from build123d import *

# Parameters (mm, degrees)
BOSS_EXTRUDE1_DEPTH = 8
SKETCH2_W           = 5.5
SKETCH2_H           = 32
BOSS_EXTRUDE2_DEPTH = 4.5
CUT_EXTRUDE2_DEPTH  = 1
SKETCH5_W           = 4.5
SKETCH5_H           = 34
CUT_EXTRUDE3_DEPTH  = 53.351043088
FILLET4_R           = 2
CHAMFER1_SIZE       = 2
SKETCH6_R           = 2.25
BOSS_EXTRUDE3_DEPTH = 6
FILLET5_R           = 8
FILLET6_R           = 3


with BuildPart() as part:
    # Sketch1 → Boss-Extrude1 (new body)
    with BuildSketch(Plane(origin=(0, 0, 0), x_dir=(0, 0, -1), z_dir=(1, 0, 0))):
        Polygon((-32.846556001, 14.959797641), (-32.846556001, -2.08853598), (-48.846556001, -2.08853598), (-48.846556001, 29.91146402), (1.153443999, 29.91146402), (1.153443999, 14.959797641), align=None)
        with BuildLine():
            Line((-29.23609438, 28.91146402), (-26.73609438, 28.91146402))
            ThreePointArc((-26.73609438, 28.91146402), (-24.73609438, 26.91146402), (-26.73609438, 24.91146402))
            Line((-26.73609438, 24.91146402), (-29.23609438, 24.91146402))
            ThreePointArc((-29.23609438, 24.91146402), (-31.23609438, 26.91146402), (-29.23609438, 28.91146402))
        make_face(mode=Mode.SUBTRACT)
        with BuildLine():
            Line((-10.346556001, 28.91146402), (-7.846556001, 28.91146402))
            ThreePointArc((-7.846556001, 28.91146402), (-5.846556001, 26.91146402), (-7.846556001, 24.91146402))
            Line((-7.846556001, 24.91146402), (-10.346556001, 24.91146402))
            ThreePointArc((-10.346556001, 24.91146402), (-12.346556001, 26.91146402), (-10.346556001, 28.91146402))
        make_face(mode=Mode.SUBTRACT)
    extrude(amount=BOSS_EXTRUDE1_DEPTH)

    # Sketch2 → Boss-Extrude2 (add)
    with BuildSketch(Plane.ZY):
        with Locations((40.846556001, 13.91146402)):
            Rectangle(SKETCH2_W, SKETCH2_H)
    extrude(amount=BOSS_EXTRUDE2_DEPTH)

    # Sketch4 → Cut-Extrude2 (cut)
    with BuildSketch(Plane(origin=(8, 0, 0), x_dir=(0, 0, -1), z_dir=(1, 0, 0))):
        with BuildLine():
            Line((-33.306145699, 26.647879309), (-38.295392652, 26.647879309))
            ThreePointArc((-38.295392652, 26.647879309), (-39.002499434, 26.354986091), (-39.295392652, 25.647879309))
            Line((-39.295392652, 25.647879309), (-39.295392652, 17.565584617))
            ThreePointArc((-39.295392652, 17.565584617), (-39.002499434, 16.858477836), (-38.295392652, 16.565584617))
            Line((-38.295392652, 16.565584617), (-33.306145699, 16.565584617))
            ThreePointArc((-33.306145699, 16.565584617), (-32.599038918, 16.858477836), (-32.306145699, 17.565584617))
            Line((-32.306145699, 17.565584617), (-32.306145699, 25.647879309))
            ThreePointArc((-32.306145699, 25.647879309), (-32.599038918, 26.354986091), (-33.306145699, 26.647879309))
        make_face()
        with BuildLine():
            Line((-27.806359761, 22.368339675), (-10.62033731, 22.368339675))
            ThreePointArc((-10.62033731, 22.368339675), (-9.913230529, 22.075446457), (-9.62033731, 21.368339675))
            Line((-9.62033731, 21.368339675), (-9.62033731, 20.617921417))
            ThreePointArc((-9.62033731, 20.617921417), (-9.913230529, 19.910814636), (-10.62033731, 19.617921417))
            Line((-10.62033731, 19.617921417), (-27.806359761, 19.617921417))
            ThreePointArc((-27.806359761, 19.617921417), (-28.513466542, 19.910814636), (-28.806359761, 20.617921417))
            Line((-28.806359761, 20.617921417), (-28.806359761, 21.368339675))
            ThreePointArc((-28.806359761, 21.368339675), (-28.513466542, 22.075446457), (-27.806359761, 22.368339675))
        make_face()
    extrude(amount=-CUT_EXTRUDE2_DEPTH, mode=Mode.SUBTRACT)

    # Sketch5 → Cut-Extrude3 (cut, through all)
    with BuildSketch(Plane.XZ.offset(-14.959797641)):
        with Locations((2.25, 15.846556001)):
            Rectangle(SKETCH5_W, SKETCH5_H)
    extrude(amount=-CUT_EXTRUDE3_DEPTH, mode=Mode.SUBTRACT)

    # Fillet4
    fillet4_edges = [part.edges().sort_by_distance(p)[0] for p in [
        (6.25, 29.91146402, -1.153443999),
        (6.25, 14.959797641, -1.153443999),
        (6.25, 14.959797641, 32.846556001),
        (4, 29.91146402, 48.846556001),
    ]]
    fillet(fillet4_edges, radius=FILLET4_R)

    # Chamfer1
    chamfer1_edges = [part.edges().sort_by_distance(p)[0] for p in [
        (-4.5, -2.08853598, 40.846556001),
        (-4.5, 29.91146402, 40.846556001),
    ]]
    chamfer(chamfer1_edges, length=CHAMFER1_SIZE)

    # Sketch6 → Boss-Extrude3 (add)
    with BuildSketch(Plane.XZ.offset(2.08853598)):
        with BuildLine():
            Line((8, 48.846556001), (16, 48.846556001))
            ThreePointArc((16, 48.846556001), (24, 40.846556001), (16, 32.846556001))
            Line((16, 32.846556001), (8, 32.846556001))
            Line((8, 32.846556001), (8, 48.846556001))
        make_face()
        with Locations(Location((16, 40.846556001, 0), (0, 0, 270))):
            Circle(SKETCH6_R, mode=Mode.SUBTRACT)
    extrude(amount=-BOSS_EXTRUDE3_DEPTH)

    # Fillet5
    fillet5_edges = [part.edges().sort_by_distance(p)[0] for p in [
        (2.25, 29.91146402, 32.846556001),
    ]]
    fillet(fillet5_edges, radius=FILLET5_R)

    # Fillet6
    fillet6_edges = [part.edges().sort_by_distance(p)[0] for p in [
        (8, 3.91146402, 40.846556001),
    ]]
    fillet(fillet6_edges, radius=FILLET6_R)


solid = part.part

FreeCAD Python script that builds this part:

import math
import FreeCAD as App
import Part
import Sketcher
from FreeCAD import Vector
Q = App.Units.Quantity


def edges_at(feature, points):
    """Names of the edges that pass closest to the given points."""
    edges = feature.Shape.Edges
    near = lambda p: min(range(len(edges)), key=lambda i: edges[i].distToShape(Part.Vertex(*p))[0])
    return sorted({f"Edge{near(p) + 1}" for p in points})

doc = App.newDocument("Part")
body = doc.addObject("PartDesign::Body", "Body")

# Sketch on YZ plane
sketch1 = doc.addObject("Sketcher::SketchObject", "Sketch")
body.addObject(sketch1)
sketch1.AttachmentSupport = (doc.YZ_Plane, [""])
sketch1.MapMode = "FlatFace"
sketch1.addGeometry([
    Part.LineSegment(Vector(-2.1, 32.8, 0), Vector(15, 32.8, 0)),  # 0
    Part.LineSegment(Vector(15, 32.8, 0), Vector(15, -1.2, 0)),  # 1
    Part.LineSegment(Vector(15, -1.2, 0), Vector(29.9, -1.2, 0)),  # 2
    Part.LineSegment(Vector(29.9, -1.2, 0), Vector(29.9, 48.8, 0)),  # 3
    Part.LineSegment(Vector(29.9, 48.8, 0), Vector(-2.1, 48.8, 0)),  # 4
    Part.LineSegment(Vector(-2.1, 48.8, 0), Vector(-2.1, 32.8, 0)),  # 5
    Part.LineSegment(Vector(28.9, 10.3, 0), Vector(28.9, 7.8, 0)),  # 6
    Part.ArcOfCircle(Part.Circle(Vector(26.9, 7.8, 0), Vector(0, 0, 1), 2), math.radians(180), math.radians(360)),  # 7
    Part.LineSegment(Vector(24.9, 7.8, 0), Vector(24.9, 10.3, 0)),  # 8
    Part.ArcOfCircle(Part.Circle(Vector(26.9, 10.3, 0), Vector(0, 0, 1), 2), math.radians(0), math.radians(180)),  # 9
    Part.LineSegment(Vector(28.9, 29.2, 0), Vector(28.9, 26.7, 0)),  # 10
    Part.ArcOfCircle(Part.Circle(Vector(26.9, 26.7, 0), Vector(0, 0, 1), 2), math.radians(180), math.radians(360)),  # 11
    Part.LineSegment(Vector(24.9, 26.7, 0), Vector(24.9, 29.2, 0)),  # 12
    Part.ArcOfCircle(Part.Circle(Vector(26.9, 29.2, 0), Vector(0, 0, 1), 2), math.radians(0), math.radians(180)),  # 13
], False)
sketch1.addConstraint([
    Sketcher.Constraint("Coincident", 0, 2, 1, 1),
    Sketcher.Constraint("Coincident", 1, 2, 2, 1),
    Sketcher.Constraint("Coincident", 2, 2, 3, 1),
    Sketcher.Constraint("Coincident", 3, 2, 4, 1),
    Sketcher.Constraint("Coincident", 4, 2, 5, 1),
    Sketcher.Constraint("Coincident", 5, 2, 0, 1),
    Sketcher.Constraint("Tangent", 6, 2, 7, 2),
    Sketcher.Constraint("Tangent", 7, 1, 8, 1),
    Sketcher.Constraint("Tangent", 8, 2, 9, 2),
    Sketcher.Constraint("Tangent", 9, 1, 6, 1),
    Sketcher.Constraint("Tangent", 10, 2, 11, 2),
    Sketcher.Constraint("Tangent", 11, 1, 12, 1),
    Sketcher.Constraint("Tangent", 12, 2, 13, 2),
    Sketcher.Constraint("Tangent", 13, 1, 10, 1),
    Sketcher.Constraint("Horizontal", 0),
    Sketcher.Constraint("Vertical", 1),
    Sketcher.Constraint("Horizontal", 2),
    Sketcher.Constraint("Vertical", 3),
    Sketcher.Constraint("Horizontal", 4),
    Sketcher.Constraint("Vertical", 5),
    Sketcher.Constraint("Vertical", 6),
    Sketcher.Constraint("Vertical", 8),
    Sketcher.Constraint("Vertical", 10),
    Sketcher.Constraint("Vertical", 12),
    Sketcher.Constraint("Equal", 9, 11),
    Sketcher.Constraint("Vertical", 9, 3, 11, 3),
    Sketcher.Constraint("Equal", 8, 10),
    Sketcher.Constraint("Radius", 7, Q("2 mm")),
    Sketcher.Constraint("DistanceX", 4, 2, 4, 1, Q("32 mm")),
    Sketcher.Constraint("DistanceY", 1, 2, 1, 1, Q("34 mm")),
    Sketcher.Constraint("DistanceY", 3, 1, 3, 2, Q("50 mm")),
    Sketcher.Constraint("DistanceY", 6, 2, 6, 1, Q("2.5 mm")),
    Sketcher.Constraint("DistanceY", 7, 3, 0, 2, Q("25 mm")),
    Sketcher.Constraint("DistanceX", 7, 3, 2, 2, Q("3 mm")),
    Sketcher.Constraint("DistanceX", 0, 1, 0, 2, Q("17.048334 mm")),
    Sketcher.Constraint("DistanceY", 9, 3, 11, 3, Q("16.389538 mm")),
    Sketcher.Constraint("DistanceX", -1, 1, 7, 3, Q("26.911464 mm")),
    Sketcher.Constraint("DistanceY", -1, 1, 7, 3, Q("7.846556 mm")),
])
pad1 = doc.addObject("PartDesign::Pad", "Pad")
body.addObject(pad1)
pad1.Profile = sketch1
pad1.Length = 8

# Sketch on YZ plane
sketch2 = doc.addObject("Sketcher::SketchObject", "Sketch001")
body.addObject(sketch2)
sketch2.AttachmentSupport = (doc.YZ_Plane, [""])
sketch2.MapMode = "FlatFace"
sketch2.addGeometry([
    Part.LineSegment(Vector(30, 38, 0), Vector(-2, 38, 0)),
    Part.LineSegment(Vector(-2, 38, 0), Vector(-2, 44, 0)),
    Part.LineSegment(Vector(-2, 44, 0), Vector(30, 44, 0)),
    Part.LineSegment(Vector(30, 44, 0), Vector(30, 38, 0)),
], False)
sketch2.addConstraint([
    Sketcher.Constraint("Coincident", 0, 2, 1, 1),
    Sketcher.Constraint("Coincident", 1, 2, 2, 1),
    Sketcher.Constraint("Coincident", 2, 2, 3, 1),
    Sketcher.Constraint("Coincident", 3, 2, 0, 1),
    Sketcher.Constraint("Horizontal", 0),
    Sketcher.Constraint("Vertical", 1),
    Sketcher.Constraint("Horizontal", 2),
    Sketcher.Constraint("Vertical", 3),
    Sketcher.Constraint("DistanceX", 0, 2, 0, 1, Q("32 mm")),
    Sketcher.Constraint("DistanceY", 1, 1, 1, 2, Q("5.5 mm")),
    Sketcher.Constraint("DistanceX", 0, 2, -1, 1, Q("2.088536 mm")),
    Sketcher.Constraint("DistanceY", -1, 1, 0, 2, Q("38.096556 mm")),
])
pad2 = doc.addObject("PartDesign::Pad", "Pad001")
body.addObject(pad2)
pad2.Profile = sketch2
pad2.Length = 4.5
pad2.Reversed = True

# Sketch on YZ plane
sketch3 = doc.addObject("Sketcher::SketchObject", "Sketch002")
body.addObject(sketch3)
sketch3.AttachmentSupport = (doc.YZ_Plane, [""])
sketch3.MapMode = "FlatFace"
sketch3.AttachmentOffset = App.Placement(Vector(0, 0, 8), App.Rotation())
sketch3.addGeometry([
    Part.LineSegment(Vector(26.6, 33.3, 0), Vector(26.6, 38.3, 0)),  # 0
    Part.ArcOfCircle(Part.Circle(Vector(25.6, 38.3, 0), Vector(0, 0, 1), 1), math.radians(0), math.radians(90)),  # 1
    Part.LineSegment(Vector(25.6, 39.3, 0), Vector(17.6, 39.3, 0)),  # 2
    Part.ArcOfCircle(Part.Circle(Vector(17.6, 38.3, 0), Vector(0, 0, 1), 1), math.radians(90), math.radians(180)),  # 3
    Part.LineSegment(Vector(16.6, 38.3, 0), Vector(16.6, 33.3, 0)),  # 4
    Part.ArcOfCircle(Part.Circle(Vector(17.6, 33.3, 0), Vector(0, 0, 1), 1), math.radians(-180), math.radians(-90)),  # 5
    Part.LineSegment(Vector(17.6, 32.3, 0), Vector(25.6, 32.3, 0)),  # 6
    Part.ArcOfCircle(Part.Circle(Vector(25.6, 33.3, 0), Vector(0, 0, 1), 1), math.radians(-90), math.radians(0)),  # 7
    Part.LineSegment(Vector(22.4, 10.6, 0), Vector(22.4, 27.8, 0)),  # 8
    Part.ArcOfCircle(Part.Circle(Vector(21.4, 27.8, 0), Vector(0, 0, 1), 1), math.radians(0), math.radians(90)),  # 9
    Part.LineSegment(Vector(21.4, 28.8, 0), Vector(20.6, 28.8, 0)),  # 10
    Part.ArcOfCircle(Part.Circle(Vector(20.6, 27.8, 0), Vector(0, 0, 1), 1), math.radians(90), math.radians(180)),  # 11
    Part.LineSegment(Vector(19.6, 27.8, 0), Vector(19.6, 10.6, 0)),  # 12
    Part.ArcOfCircle(Part.Circle(Vector(20.6, 10.6, 0), Vector(0, 0, 1), 1), math.radians(-180), math.radians(-90)),  # 13
    Part.LineSegment(Vector(20.6, 9.6, 0), Vector(21.4, 9.6, 0)),  # 14
    Part.ArcOfCircle(Part.Circle(Vector(21.4, 10.6, 0), Vector(0, 0, 1), 1), math.radians(-90), math.radians(0)),  # 15
], False)
sketch3.addConstraint([
    Sketcher.Constraint("Tangent", 0, 2, 1, 1),
    Sketcher.Constraint("Tangent", 1, 2, 2, 1),
    Sketcher.Constraint("Tangent", 2, 2, 3, 1),
    Sketcher.Constraint("Tangent", 3, 2, 4, 1),
    Sketcher.Constraint("Tangent", 4, 2, 5, 1),
    Sketcher.Constraint("Tangent", 5, 2, 6, 1),
    Sketcher.Constraint("Tangent", 6, 2, 7, 1),
    Sketcher.Constraint("Tangent", 7, 2, 0, 1),
    Sketcher.Constraint("Tangent", 8, 2, 9, 1),
    Sketcher.Constraint("Tangent", 9, 2, 10, 1),
    Sketcher.Constraint("Tangent", 10, 2, 11, 1),
    Sketcher.Constraint("Tangent", 11, 2, 12, 1),
    Sketcher.Constraint("Tangent", 12, 2, 13, 1),
    Sketcher.Constraint("Tangent", 13, 2, 14, 1),
    Sketcher.Constraint("Tangent", 14, 2, 15, 1),
    Sketcher.Constraint("Tangent", 15, 2, 8, 1),
    Sketcher.Constraint("Vertical", 0),
    Sketcher.Constraint("Horizontal", 2),
    Sketcher.Constraint("Vertical", 4),
    Sketcher.Constraint("Horizontal", 6),
    Sketcher.Constraint("Vertical", 8),
    Sketcher.Constraint("Horizontal", 10),
    Sketcher.Constraint("Vertical", 12),
    Sketcher.Constraint("Horizontal", 14),
    Sketcher.Constraint("Equal", 1, 3),
    Sketcher.Constraint("Equal", 3, 5),
    Sketcher.Constraint("Equal", 5, 7),
    Sketcher.Constraint("Equal", 7, 9),
    Sketcher.Constraint("Equal", 9, 11),
    Sketcher.Constraint("Equal", 11, 13),
    Sketcher.Constraint("Equal", 13, 15),
    Sketcher.Constraint("Radius", 1, Q("1 mm")),
    Sketcher.Constraint("DistanceX", 10, 2, 10, 1, Q("0.750418 mm")),
    Sketcher.Constraint("DistanceX", 2, 2, 2, 1, Q("8.082295 mm")),
    Sketcher.Constraint("DistanceY", 0, 1, 0, 2, Q("4.989247 mm")),
    Sketcher.Constraint("DistanceY", 8, 1, 8, 2, Q("17.186022 mm")),
    Sketcher.Constraint("DistanceX", -1, 1, 1, 3, Q("25.647879 mm")),
    Sketcher.Constraint("DistanceX", -1, 1, 9, 3, Q("21.36834 mm")),
    Sketcher.Constraint("DistanceY", -1, 1, 9, 3, Q("27.80636 mm")),
    Sketcher.Constraint("DistanceY", 13, 3, 5, 3, Q("22.685808 mm")),
])
pocket1 = doc.addObject("PartDesign::Pocket", "Pocket")
body.addObject(pocket1)
pocket1.Profile = sketch3
pocket1.Length = 1

# Sketch on XZ plane
sketch4 = doc.addObject("Sketcher::SketchObject", "Sketch003")
body.addObject(sketch4)
sketch4.AttachmentSupport = (doc.XZ_Plane, [""])
sketch4.MapMode = "FlatFace"
sketch4.AttachmentOffset = App.Placement(Vector(0, 0, -14.959798), App.Rotation())
sketch4.addGeometry([
    Part.LineSegment(Vector(0, 32.8, 0), Vector(0, -1.2, 0)),
    Part.LineSegment(Vector(0, -1.2, 0), Vector(4.5, -1.2, 0)),
    Part.LineSegment(Vector(4.5, -1.2, 0), Vector(4.5, 32.8, 0)),
    Part.LineSegment(Vector(4.5, 32.8, 0), Vector(0, 32.8, 0)),
], False)
sketch4.addConstraint([
    Sketcher.Constraint("Coincident", 0, 2, 1, 1),
    Sketcher.Constraint("Coincident", 1, 2, 2, 1),
    Sketcher.Constraint("Coincident", 2, 2, 3, 1),
    Sketcher.Constraint("Coincident", 3, 2, 0, 1),
    Sketcher.Constraint("Vertical", 0),
    Sketcher.Constraint("Horizontal", 1),
    Sketcher.Constraint("Vertical", 2),
    Sketcher.Constraint("Horizontal", 3),
    Sketcher.Constraint("PointOnObject", 0, 2, -2),
    Sketcher.Constraint("DistanceY", 0, 2, 0, 1, Q("34 mm")),
    Sketcher.Constraint("DistanceX", 1, 1, 1, 2, Q("4.5 mm")),
    Sketcher.Constraint("DistanceY", 0, 2, -1, 1, Q("1.153444 mm")),
])
pocket2 = doc.addObject("PartDesign::Pocket", "Pocket001")
body.addObject(pocket2)
pocket2.Profile = sketch4
pocket2.Type = "ThroughAll"
doc.recompute()

fillet = doc.addObject("PartDesign::Fillet", "Fillet")
body.addObject(fillet)
fillet.Base = (pocket2, edges_at(pocket2, [
    (6.25, 29.911, -1.153),
    (6.25, 14.96, -1.153),
    (6.25, 14.96, 32.847),
    (4, 29.911, 48.847),
]))
fillet.Radius = 2
doc.recompute()

chamfer = doc.addObject("PartDesign::Chamfer", "Chamfer")
body.addObject(chamfer)
chamfer.Base = (fillet, edges_at(fillet, [(-4.5, -2.089, 40.847), (-4.5, 29.911, 40.847)]))
chamfer.Size = 2

# Sketch on XZ plane
sketch5 = doc.addObject("Sketcher::SketchObject", "Sketch004")
body.addObject(sketch5)
sketch5.AttachmentSupport = (doc.XZ_Plane, [""])
sketch5.MapMode = "FlatFace"
sketch5.AttachmentOffset = App.Placement(Vector(0, 0, 2.088536), App.Rotation())
sketch5.addGeometry([
    Part.LineSegment(Vector(16, 48.8, 0), Vector(8, 48.8, 0)),  # 0
    Part.LineSegment(Vector(8, 48.8, 0), Vector(8, 32.8, 0)),  # 1
    Part.LineSegment(Vector(8, 32.8, 0), Vector(16, 32.8, 0)),  # 2
    Part.ArcOfCircle(Part.Circle(Vector(16, 40.8, 0), Vector(0, 0, 1), 8), math.radians(-90), math.radians(90)),  # 3
    Part.Circle(Vector(16, 40.8, 0), Vector(0, 0, 1), 2.2),  # 4
], False)
sketch5.addConstraint([
    Sketcher.Constraint("Coincident", 0, 2, 1, 1),
    Sketcher.Constraint("Coincident", 1, 2, 2, 1),
    Sketcher.Constraint("Tangent", 2, 2, 3, 1),
    Sketcher.Constraint("Tangent", 3, 2, 0, 1),
    Sketcher.Constraint("Horizontal", 0),
    Sketcher.Constraint("Vertical", 1),
    Sketcher.Constraint("Horizontal", 2),
    Sketcher.Constraint("Coincident", 4, 3, 3, 3),
    Sketcher.Constraint("Radius", 3, Q("8 mm")),
    Sketcher.Constraint("Diameter", 4, Q("4.5 mm")),
    Sketcher.Constraint("DistanceX", 0, 2, 0, 1, Q("8 mm")),
    Sketcher.Constraint("DistanceX", -1, 1, 3, 3, Q("16 mm")),
    Sketcher.Constraint("DistanceY", -1, 1, 3, 3, Q("40.846556 mm")),
])
pad3 = doc.addObject("PartDesign::Pad", "Pad002")
body.addObject(pad3)
pad3.Profile = sketch5
pad3.Length = 6
pad3.Reversed = True
doc.recompute()

fillet2 = doc.addObject("PartDesign::Fillet", "Fillet001")
body.addObject(fillet2)
fillet2.Base = (pad3, edges_at(pad3, [(2.25, 29.911, 32.847)]))
fillet2.Radius = 8
doc.recompute()

fillet3 = doc.addObject("PartDesign::Fillet", "Fillet002")
body.addObject(fillet3)
fillet3.Base = (fillet2, edges_at(fillet2, [(8, 3.911, 40.847)]))
fillet3.Radius = 3

doc.recompute()
